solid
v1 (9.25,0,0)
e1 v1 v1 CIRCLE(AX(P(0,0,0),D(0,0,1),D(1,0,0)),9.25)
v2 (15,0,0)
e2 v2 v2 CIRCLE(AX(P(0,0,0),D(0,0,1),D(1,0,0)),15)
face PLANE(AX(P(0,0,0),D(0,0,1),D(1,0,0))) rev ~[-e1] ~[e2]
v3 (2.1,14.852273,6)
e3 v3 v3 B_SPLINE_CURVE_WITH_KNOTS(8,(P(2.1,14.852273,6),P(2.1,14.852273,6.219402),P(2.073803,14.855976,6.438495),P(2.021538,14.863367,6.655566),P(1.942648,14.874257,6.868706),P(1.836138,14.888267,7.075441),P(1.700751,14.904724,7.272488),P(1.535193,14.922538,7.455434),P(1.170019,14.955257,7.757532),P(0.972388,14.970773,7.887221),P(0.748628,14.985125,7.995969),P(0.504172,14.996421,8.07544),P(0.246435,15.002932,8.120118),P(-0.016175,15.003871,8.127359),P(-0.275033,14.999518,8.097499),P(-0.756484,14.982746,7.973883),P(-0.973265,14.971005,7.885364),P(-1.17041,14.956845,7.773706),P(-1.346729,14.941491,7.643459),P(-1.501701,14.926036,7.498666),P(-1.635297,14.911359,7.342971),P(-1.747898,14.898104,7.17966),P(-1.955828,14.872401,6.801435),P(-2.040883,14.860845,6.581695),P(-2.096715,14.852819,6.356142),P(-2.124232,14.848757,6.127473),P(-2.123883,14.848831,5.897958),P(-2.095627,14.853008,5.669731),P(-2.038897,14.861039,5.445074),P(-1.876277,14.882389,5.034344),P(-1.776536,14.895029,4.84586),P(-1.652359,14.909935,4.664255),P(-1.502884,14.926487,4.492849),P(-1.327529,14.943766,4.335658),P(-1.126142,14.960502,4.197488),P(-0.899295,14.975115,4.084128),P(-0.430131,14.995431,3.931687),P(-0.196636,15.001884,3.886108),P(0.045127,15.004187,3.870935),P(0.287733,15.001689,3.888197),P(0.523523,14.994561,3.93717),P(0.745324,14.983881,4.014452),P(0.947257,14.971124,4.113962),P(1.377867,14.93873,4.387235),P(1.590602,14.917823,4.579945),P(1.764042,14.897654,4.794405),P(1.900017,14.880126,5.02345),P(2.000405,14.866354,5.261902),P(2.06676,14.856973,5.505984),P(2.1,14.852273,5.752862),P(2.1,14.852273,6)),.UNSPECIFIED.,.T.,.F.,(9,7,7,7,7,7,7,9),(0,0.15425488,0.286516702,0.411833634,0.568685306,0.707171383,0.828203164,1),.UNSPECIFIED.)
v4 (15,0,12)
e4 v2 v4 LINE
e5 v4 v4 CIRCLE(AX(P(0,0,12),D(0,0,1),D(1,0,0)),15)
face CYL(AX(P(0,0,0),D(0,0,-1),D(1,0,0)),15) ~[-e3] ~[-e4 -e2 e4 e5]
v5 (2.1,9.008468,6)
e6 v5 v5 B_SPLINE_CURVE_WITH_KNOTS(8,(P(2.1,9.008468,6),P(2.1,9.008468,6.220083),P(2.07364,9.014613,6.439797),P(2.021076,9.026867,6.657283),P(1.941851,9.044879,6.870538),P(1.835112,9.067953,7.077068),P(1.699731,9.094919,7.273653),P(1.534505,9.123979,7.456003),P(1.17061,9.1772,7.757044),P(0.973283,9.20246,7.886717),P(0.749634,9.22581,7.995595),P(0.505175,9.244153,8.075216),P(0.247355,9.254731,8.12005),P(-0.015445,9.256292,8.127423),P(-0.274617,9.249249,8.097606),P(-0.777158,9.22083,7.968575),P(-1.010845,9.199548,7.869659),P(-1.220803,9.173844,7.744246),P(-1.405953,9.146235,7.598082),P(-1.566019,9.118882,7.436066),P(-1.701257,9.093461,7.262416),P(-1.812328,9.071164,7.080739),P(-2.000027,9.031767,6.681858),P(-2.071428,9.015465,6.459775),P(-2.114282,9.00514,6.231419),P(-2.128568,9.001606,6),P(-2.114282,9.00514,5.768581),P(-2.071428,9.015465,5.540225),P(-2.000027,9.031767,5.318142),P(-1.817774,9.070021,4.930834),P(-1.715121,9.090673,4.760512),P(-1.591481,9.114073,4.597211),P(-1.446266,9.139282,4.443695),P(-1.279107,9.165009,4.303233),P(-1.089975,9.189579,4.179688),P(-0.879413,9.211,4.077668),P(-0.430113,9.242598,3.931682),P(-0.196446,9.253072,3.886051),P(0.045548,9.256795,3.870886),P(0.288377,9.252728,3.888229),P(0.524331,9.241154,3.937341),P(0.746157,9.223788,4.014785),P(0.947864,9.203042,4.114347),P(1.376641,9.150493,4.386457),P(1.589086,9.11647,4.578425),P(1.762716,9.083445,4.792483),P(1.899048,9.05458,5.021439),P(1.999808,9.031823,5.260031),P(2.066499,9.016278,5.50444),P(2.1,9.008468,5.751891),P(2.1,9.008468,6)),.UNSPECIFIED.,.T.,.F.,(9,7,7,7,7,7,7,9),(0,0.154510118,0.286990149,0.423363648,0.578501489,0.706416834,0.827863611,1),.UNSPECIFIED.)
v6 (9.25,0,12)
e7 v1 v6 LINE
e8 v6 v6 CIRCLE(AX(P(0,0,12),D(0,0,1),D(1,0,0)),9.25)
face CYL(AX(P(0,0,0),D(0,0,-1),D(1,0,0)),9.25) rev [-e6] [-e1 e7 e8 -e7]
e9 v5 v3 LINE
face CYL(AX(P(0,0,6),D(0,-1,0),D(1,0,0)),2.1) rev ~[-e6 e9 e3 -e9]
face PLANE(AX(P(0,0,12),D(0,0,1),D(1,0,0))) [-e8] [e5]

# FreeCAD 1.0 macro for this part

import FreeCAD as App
import Part
import Sketcher
Q = App.Units.Quantity

doc = App.newDocument("Part")
body = doc.addObject("PartDesign::Body", "Body")

# Sketch on XY plane
sketch1 = doc.addObject("Sketcher::SketchObject", "Sketch")
body.addObject(sketch1)
sketch1.AttachmentSupport = (doc.XY_Plane, [""])
sketch1.MapMode = "FlatFace"
sketch1.addGeometry(Part.Circle(App.Vector(0, 0, 0), App.Vector(0, 0, 1), 15), False)
sketch1.addGeometry(Part.Circle(App.Vector(0, 0, 0), App.Vector(0, 0, 1), 9), False)
sketch1.addConstraint(Sketcher.Constraint("Coincident", 0, 3, -1, 1))
sketch1.addConstraint(Sketcher.Constraint("Coincident", 1, 3, -1, 1))
sketch1.addConstraint(Sketcher.Constraint("Diameter", 0, Q("30 mm")))
sketch1.addConstraint(Sketcher.Constraint("Diameter", 1, Q("18.5 mm")))
pad1 = doc.addObject("PartDesign::Pad", "Pad")
body.addObject(pad1)
pad1.Profile = sketch1
pad1.Length = 12

# Sketch on XZ plane
sketch2 = doc.addObject("Sketcher::SketchObject", "Sketch001")
body.addObject(sketch2)
sketch2.AttachmentSupport = (doc.XZ_Plane, [""])
sketch2.MapMode = "FlatFace"
sketch2.addGeometry(Part.Circle(App.Vector(0, 6, 0), App.Vector(0, 0, 1), 2.1), False)
sketch2.addConstraint(Sketcher.Constraint("PointOnObject", 0, 3, -2))
sketch2.addConstraint(Sketcher.Constraint("Diameter", 0, Q("4.2 mm")))
sketch2.addConstraint(Sketcher.Constraint("DistanceY", -1, 1, 0, 3, Q("6 mm")))
pocket1 = doc.addObject("PartDesign::Pocket", "Pocket")
body.addObject(pocket1)
pocket1.Profile = sketch2
pocket1.Type = "ThroughAll"

doc.recompute()
